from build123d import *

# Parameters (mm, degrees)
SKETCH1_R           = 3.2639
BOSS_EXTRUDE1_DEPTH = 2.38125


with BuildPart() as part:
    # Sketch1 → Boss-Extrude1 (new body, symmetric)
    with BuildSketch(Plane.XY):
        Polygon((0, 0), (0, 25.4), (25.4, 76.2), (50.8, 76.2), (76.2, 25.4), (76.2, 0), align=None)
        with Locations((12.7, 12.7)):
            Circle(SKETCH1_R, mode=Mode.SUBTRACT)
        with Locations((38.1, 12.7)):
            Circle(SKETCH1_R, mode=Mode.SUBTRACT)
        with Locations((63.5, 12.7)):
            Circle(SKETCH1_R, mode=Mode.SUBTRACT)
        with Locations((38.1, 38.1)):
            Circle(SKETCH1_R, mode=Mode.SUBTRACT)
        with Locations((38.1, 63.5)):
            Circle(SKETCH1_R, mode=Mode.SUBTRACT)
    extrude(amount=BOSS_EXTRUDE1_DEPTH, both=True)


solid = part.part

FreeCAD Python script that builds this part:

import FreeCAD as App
import Part
import Sketcher
from FreeCAD import Vector
Q = App.Units.Quantity

doc = App.newDocument("Part")
body = doc.addObject("PartDesign::Body", "Body")

# Sketch on XY plane
sketch1 = body.newObject("Sketcher::SketchObject", "Sketch")
sketch1.AttachmentSupport = (doc.getObject("XY_Plane"), [""])
sketch1.MapMode = "FlatFace"
sketch1.addGeometry([
    Part.LineSegment(Vector(0, 25.4, 0), Vector(0, 0, 0)),  # 0
    Part.LineSegment(Vector(0, 0, 0), Vector(76.2, 0, 0)),  # 1
    Part.LineSegment(Vector(76.2, 0, 0), Vector(76.2, 25.4, 0)),  # 2
    Part.LineSegment(Vector(76.2, 25.4, 0), Vector(50.8, 76.2, 0)),  # 3
    Part.LineSegment(Vector(50.8, 76.2, 0), Vector(25.4, 76.2, 0)),  # 4
    Part.LineSegment(Vector(25.4, 76.2, 0), Vector(0, 25.4, 0)),  # 5
    Part.Circle(Vector(63.5, 12.7, 0), Vector(0, 0, 1), 3.3),  # 6
    Part.Circle(Vector(38.1, 12.7, 0), Vector(0, 0, 1), 3.3),  # 7
    Part.Circle(Vector(12.7, 12.7, 0), Vector(0, 0, 1), 3.3),  # 8
    Part.Circle(Vector(38.1, 38.1, 0), Vector(0, 0, 1), 3.3),  # 9
    Part.Circle(Vector(38.1, 63.5, 0), Vector(0, 0, 1), 3.3),  # 10
], False)
sketch1.addConstraint([
    Sketcher.Constraint("Coincident", 0, 2, 1, 1),
    Sketcher.Constraint("Coincident", 1, 2, 2, 1),
    Sketcher.Constraint("Coincident", 2, 2, 3, 1),
    Sketcher.Constraint("Coincident", 3, 2, 4, 1),
    Sketcher.Constraint("Coincident", 4, 2, 5, 1),
    Sketcher.Constraint("Coincident", 5, 2, 0, 1),
    Sketcher.Constraint("Vertical", 0),
    Sketcher.Constraint("Horizontal", 1),
    Sketcher.Constraint("Vertical", 2),
    Sketcher.Constraint("Horizontal", 4),
    Sketcher.Constraint("Coincident", 0, 2, -1, 1),
    Sketcher.Constraint("Equal", 6, 7),
    Sketcher.Constraint("Equal", 7, 8),
    Sketcher.Constraint("Equal", 8, 9),
    Sketcher.Constraint("Equal", 9, 10),
    Sketcher.Constraint("Horizontal", 6, 3, 7, 3),
    Sketcher.Constraint("Horizontal", 7, 3, 8, 3),
    Sketcher.Constraint("Horizontal", 2, 2, 5, 2),
    Sketcher.Constraint("Vertical", 7, 3, 9, 3),
    Sketcher.Constraint("Vertical", 9, 3, 10, 3),
    Sketcher.Constraint("Equal", 4, 0),
    Sketcher.Constraint("Equal", 3, 5),
    Sketcher.Constraint("DistanceX", 1, 1, 1, 2, Q("3 in")),
    Sketcher.Constraint("DistanceX", 4, 2, 4, 1, Q("1 in")),
    Sketcher.Constraint("Diameter", 6, Q("0.257 in")),
    Sketcher.Constraint("DistanceY", -1, 1, 3, 2, Q("3 in")),
    Sketcher.Constraint("DistanceX", 7, 3, 6, 3, Q("1 in")),
    Sketcher.Constraint("DistanceX", 8, 3, 7, 3, Q("1 in")),
    Sketcher.Constraint("DistanceY", 7, 3, 9, 3, Q("1 in")),
    Sketcher.Constraint("DistanceY", 9, 3, 10, 3, Q("1 in")),
    Sketcher.Constraint("DistanceX", -1, 1, 6, 3, Q("2.5 in")),
    Sketcher.Constraint("DistanceY", -1, 1, 6, 3, Q("0.5 in")),
])
pad1 = body.newObject("PartDesign::Pad", "Pad")
pad1.Profile = sketch1
pad1.Length = Q("0.1875 in")
pad1.Midplane = True

doc.recompute()
